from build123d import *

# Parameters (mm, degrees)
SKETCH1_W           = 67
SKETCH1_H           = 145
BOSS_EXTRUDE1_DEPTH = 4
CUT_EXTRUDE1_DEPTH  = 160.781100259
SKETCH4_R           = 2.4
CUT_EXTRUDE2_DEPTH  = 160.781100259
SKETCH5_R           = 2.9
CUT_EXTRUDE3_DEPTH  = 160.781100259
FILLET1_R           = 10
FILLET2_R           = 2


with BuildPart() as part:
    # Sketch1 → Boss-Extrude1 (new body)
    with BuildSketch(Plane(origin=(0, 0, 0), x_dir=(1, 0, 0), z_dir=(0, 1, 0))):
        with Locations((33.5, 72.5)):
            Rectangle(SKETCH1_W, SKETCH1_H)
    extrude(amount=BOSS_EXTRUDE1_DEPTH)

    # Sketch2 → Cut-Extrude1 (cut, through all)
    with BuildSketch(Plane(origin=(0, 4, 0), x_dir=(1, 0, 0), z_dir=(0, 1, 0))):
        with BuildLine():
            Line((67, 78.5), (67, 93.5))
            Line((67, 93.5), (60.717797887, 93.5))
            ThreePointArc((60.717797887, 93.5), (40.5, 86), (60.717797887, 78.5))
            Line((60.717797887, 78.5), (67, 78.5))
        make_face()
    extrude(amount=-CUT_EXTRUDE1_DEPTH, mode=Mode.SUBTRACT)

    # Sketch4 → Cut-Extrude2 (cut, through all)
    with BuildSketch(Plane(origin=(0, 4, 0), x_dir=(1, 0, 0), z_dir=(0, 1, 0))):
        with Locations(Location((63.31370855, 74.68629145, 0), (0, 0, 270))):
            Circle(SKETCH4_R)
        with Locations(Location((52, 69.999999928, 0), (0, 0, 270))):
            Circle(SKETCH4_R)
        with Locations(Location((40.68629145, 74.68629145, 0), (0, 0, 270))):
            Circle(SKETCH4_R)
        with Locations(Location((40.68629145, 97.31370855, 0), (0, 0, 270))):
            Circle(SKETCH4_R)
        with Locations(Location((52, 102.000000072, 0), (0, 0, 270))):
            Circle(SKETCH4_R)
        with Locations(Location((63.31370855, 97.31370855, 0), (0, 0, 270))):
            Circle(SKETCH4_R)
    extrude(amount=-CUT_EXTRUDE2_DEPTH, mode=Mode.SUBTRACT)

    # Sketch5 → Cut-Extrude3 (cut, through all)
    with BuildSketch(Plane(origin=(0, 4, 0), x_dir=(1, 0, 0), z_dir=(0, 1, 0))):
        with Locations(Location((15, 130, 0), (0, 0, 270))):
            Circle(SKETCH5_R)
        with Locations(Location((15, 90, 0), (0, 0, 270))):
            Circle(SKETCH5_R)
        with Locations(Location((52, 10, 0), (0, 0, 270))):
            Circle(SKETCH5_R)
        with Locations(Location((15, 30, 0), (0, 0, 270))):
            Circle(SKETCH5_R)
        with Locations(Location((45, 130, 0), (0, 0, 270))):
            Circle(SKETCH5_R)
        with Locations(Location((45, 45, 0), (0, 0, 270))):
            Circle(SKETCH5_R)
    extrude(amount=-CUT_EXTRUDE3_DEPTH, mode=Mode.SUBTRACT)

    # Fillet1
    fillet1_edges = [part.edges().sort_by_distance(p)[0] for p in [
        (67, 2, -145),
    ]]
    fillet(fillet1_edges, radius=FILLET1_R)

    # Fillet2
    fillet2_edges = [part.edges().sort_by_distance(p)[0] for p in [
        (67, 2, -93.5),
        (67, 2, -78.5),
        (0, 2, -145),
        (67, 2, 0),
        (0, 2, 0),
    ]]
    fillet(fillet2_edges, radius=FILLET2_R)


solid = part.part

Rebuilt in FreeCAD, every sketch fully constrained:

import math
import FreeCAD as App
import Part
import Sketcher

V = App.Vector
Q = App.Units.Quantity


def edges_at(feature, points):
    """Names of the edges that pass closest to the given points."""
    edges = feature.Shape.Edges
    near = lambda p: min(range(len(edges)), key=lambda i: edges[i].distToShape(Part.Vertex(*p))[0])
    return sorted({f"Edge{near(p) + 1}" for p in points})

doc = App.newDocument("Part")
body = doc.addObject("PartDesign::Body", "Body")

# Sketch on XZ plane
sketch1 = body.newObject("Sketcher::SketchObject", "Sketch")
sketch1.AttachmentSupport = (doc.getObject("XZ_Plane"), [""])
sketch1.MapMode = "FlatFace"
sketch1.addGeometry([
    Part.LineSegment(V(0, -145, 0), V(0, 0, 0)),
    Part.LineSegment(V(0, 0, 0), V(67, 0, 0)),
    Part.LineSegment(V(67, 0, 0), V(67, -145, 0)),
    Part.LineSegment(V(67, -145, 0), V(0, -145, 0)),
], False)
sketch1.addConstraint([
    Sketcher.Constraint("Coincident", 0, 2, 1, 1),
    Sketcher.Constraint("Coincident", 1, 2, 2, 1),
    Sketcher.Constraint("Coincident", 2, 2, 3, 1),
    Sketcher.Constraint("Coincident", 3, 2, 0, 1),
    Sketcher.Constraint("Vertical", 0),
    Sketcher.Constraint("Horizontal", 1),
    Sketcher.Constraint("Vertical", 2),
    Sketcher.Constraint("Horizontal", 3),
    Sketcher.Constraint("Coincident", 0, 2, -1, 1),
    Sketcher.Constraint("DistanceX", 1, 1, 1, 2, Q("67 mm")),
    Sketcher.Constraint("DistanceY", 0, 1, 0, 2, Q("145 mm")),
])
pad1 = body.newObject("PartDesign::Pad", "Pad")
pad1.Profile = sketch1
pad1.Length = 4
pad1.Reversed = True

# Sketch on XZ plane
sketch2 = body.newObject("Sketcher::SketchObject", "Sketch001")
sketch2.AttachmentSupport = (doc.getObject("XZ_Plane"), [""])
sketch2.MapMode = "FlatFace"
sketch2.AttachmentOffset = App.Placement(V(0, 0, -4), App.Rotation())
sketch2.addGeometry([
    Part.LineSegment(V(67, -78.5, 0), V(67, -93.5, 0)),
    Part.LineSegment(V(67, -93.5, 0), V(60.717798, -93.5, 0)),
    Part.ArcOfCircle(Part.Circle(V(52, -86, 0), V(0, 0, 1), 11.5), math.radians(40.705707), math.radians(319.294293)),
    Part.LineSegment(V(60.717798, -78.5, 0), V(67, -78.5, 0)),
], False)
sketch2.addConstraint([
    Sketcher.Constraint("Coincident", 0, 2, 1, 1),
    Sketcher.Constraint("Coincident", 1, 2, 2, 2),
    Sketcher.Constraint("Coincident", 2, 1, 3, 1),
    Sketcher.Constraint("Coincident", 3, 2, 0, 1),
    Sketcher.Constraint("Vertical", 0),
    Sketcher.Constraint("Horizontal", 1),
    Sketcher.Constraint("Horizontal", 3),
    Sketcher.Constraint("Vertical", 1, 2, 2, 1),
    Sketcher.Constraint("Radius", 2, Q("11.5 mm")),
    Sketcher.Constraint("DistanceY", 0, 2, 0, 1, Q("15 mm")),
    Sketcher.Constraint("DistanceX", -1, 1, 2, 3, Q("52 mm")),
    Sketcher.Constraint("DistanceY", 2, 3, -1, 1, Q("86 mm")),
    Sketcher.Constraint("DistanceX", -1, 1, 0, 2, Q("67 mm")),
])
pocket1 = body.newObject("PartDesign::Pocket", "Pocket")
pocket1.Profile = sketch2
pocket1.Type = "ThroughAll"
pocket1.Reversed = True

# Sketch on XZ plane
sketch3 = body.newObject("Sketcher::SketchObject", "Sketch002")
sketch3.AttachmentSupport = (doc.getObject("XZ_Plane"), [""])
sketch3.MapMode = "FlatFace"
sketch3.AttachmentOffset = App.Placement(V(0, 0, -4), App.Rotation())
sketch3.addGeometry([
    Part.Circle(V(63.313709, -74.686291, 0), V(0, 0, 1), 2.4),  # 0
    Part.Circle(V(52, -70, 0), V(0, 0, 1), 2.4),  # 1
    Part.Circle(V(40.686291, -74.686291, 0), V(0, 0, 1), 2.4),  # 2
    Part.Circle(V(40.686291, -97.313709, 0), V(0, 0, 1), 2.4),  # 3
    Part.Circle(V(52, -102, 0), V(0, 0, 1), 2.4),  # 4
    Part.Circle(V(63.313709, -97.313709, 0), V(0, 0, 1), 2.4),  # 5
], False)
sketch3.addConstraint([
    Sketcher.Constraint("Equal", 0, 1),
    Sketcher.Constraint("Equal", 1, 2),
    Sketcher.Constraint("Equal", 2, 3),
    Sketcher.Constraint("Equal", 3, 4),
    Sketcher.Constraint("Equal", 4, 5),
    Sketcher.Constraint("Horizontal", 0, 3, 2, 3),
    Sketcher.Constraint("Horizontal", 3, 3, 5, 3),
    Sketcher.Constraint("Vertical", 2, 3, 3, 3),
    Sketcher.Constraint("Vertical", 1, 3, 4, 3),
    Sketcher.Constraint("Vertical", 0, 3, 5, 3),
    Sketcher.Constraint("Diameter", 0, Q("4.8 mm")),
    Sketcher.Constraint("DistanceX", -1, 1, 1, 3, Q("52 mm")),
    Sketcher.Constraint("DistanceY", 1, 3, -1, 1, Q("70 mm")),
    Sketcher.Constraint("DistanceY", 4, 3, -1, 1, Q("102 mm")),
    Sketcher.Constraint("DistanceX", -1, 1, 0, 3, Q("63.313709 mm")),
    Sketcher.Constraint("DistanceY", 0, 3, -1, 1, Q("74.686291 mm")),
    Sketcher.Constraint("DistanceX", -1, 1, 2, 3, Q("40.686291 mm")),
    Sketcher.Constraint("DistanceY", 3, 3, -1, 1, Q("97.313709 mm")),
])
pocket2 = body.newObject("PartDesign::Pocket", "Pocket001")
pocket2.Profile = sketch3
pocket2.Type = "ThroughAll"
pocket2.Reversed = True

# Sketch on XZ plane
sketch4 = body.newObject("Sketcher::SketchObject", "Sketch003")
sketch4.AttachmentSupport = (doc.getObject("XZ_Plane"), [""])
sketch4.MapMode = "FlatFace"
sketch4.AttachmentOffset = App.Placement(V(0, 0, -4), App.Rotation())
sketch4.addGeometry([
    Part.Circle(V(15, -130, 0), V(0, 0, 1), 2.9),  # 0
    Part.Circle(V(15, -90, 0), V(0, 0, 1), 2.9),  # 1
    Part.Circle(V(52, -10, 0), V(0, 0, 1), 2.9),  # 2
    Part.Circle(V(15, -30, 0), V(0, 0, 1), 2.9),  # 3
    Part.Circle(V(45, -130, 0), V(0, 0, 1), 2.9),  # 4
    Part.Circle(V(45, -45, 0), V(0, 0, 1), 2.9),  # 5
], False)
sketch4.addConstraint([
    Sketcher.Constraint("Equal", 0, 1),
    Sketcher.Constraint("Equal", 1, 2),
    Sketcher.Constraint("Equal", 2, 3),
    Sketcher.Constraint("Equal", 3, 4),
    Sketcher.Constraint("Equal", 4, 5),
    Sketcher.Constraint("Horizontal", 0, 3, 4, 3),
    Sketcher.Constraint("Vertical", 0, 3, 1, 3),
    Sketcher.Constraint("Vertical", 1, 3, 3, 3),
    Sketcher.Constraint("Vertical", 4, 3, 5, 3),
    Sketcher.Constraint("Diameter", 0, Q("5.8 mm")),
    Sketcher.Constraint("DistanceX", -1, 1, 0, 3, Q("15 mm")),
    Sketcher.Constraint("DistanceY", 0, 3, -1, 1, Q("130 mm")),
    Sketcher.Constraint("DistanceY", 1, 3, -1, 1, Q("90 mm")),
    Sketcher.Constraint("DistanceX", -1, 1, 2, 3, Q("52 mm")),
    Sketcher.Constraint("DistanceY", 2, 3, -1, 1, Q("10 mm")),
    Sketcher.Constraint("DistanceY", 3, 3, -1, 1, Q("30 mm")),
    Sketcher.Constraint("DistanceX", -1, 1, 4, 3, Q("45 mm")),
    Sketcher.Constraint("DistanceY", 5, 3, -1, 1, Q("45 mm")),
])
pocket3 = body.newObject("PartDesign::Pocket", "Pocket002")
pocket3.Profile = sketch4
pocket3.Type = "ThroughAll"
pocket3.Reversed = True
doc.recompute()

fillet = body.newObject("PartDesign::Fillet", "Fillet")
fillet.Base = (pocket3, edges_at(pocket3, [(67, 2, -145)]))
fillet.Radius = 10
doc.recompute()

fillet2 = body.newObject("PartDesign::Fillet", "Fillet001")
fillet2.Base = (fillet, edges_at(fillet, [
    (67, 2, -93.5),
    (67, 2, -78.5),
    (0, 2, -145),
    (67, 2, 0),
    (0, 2, 0),
]))
fillet2.Radius = 2

doc.recompute()
